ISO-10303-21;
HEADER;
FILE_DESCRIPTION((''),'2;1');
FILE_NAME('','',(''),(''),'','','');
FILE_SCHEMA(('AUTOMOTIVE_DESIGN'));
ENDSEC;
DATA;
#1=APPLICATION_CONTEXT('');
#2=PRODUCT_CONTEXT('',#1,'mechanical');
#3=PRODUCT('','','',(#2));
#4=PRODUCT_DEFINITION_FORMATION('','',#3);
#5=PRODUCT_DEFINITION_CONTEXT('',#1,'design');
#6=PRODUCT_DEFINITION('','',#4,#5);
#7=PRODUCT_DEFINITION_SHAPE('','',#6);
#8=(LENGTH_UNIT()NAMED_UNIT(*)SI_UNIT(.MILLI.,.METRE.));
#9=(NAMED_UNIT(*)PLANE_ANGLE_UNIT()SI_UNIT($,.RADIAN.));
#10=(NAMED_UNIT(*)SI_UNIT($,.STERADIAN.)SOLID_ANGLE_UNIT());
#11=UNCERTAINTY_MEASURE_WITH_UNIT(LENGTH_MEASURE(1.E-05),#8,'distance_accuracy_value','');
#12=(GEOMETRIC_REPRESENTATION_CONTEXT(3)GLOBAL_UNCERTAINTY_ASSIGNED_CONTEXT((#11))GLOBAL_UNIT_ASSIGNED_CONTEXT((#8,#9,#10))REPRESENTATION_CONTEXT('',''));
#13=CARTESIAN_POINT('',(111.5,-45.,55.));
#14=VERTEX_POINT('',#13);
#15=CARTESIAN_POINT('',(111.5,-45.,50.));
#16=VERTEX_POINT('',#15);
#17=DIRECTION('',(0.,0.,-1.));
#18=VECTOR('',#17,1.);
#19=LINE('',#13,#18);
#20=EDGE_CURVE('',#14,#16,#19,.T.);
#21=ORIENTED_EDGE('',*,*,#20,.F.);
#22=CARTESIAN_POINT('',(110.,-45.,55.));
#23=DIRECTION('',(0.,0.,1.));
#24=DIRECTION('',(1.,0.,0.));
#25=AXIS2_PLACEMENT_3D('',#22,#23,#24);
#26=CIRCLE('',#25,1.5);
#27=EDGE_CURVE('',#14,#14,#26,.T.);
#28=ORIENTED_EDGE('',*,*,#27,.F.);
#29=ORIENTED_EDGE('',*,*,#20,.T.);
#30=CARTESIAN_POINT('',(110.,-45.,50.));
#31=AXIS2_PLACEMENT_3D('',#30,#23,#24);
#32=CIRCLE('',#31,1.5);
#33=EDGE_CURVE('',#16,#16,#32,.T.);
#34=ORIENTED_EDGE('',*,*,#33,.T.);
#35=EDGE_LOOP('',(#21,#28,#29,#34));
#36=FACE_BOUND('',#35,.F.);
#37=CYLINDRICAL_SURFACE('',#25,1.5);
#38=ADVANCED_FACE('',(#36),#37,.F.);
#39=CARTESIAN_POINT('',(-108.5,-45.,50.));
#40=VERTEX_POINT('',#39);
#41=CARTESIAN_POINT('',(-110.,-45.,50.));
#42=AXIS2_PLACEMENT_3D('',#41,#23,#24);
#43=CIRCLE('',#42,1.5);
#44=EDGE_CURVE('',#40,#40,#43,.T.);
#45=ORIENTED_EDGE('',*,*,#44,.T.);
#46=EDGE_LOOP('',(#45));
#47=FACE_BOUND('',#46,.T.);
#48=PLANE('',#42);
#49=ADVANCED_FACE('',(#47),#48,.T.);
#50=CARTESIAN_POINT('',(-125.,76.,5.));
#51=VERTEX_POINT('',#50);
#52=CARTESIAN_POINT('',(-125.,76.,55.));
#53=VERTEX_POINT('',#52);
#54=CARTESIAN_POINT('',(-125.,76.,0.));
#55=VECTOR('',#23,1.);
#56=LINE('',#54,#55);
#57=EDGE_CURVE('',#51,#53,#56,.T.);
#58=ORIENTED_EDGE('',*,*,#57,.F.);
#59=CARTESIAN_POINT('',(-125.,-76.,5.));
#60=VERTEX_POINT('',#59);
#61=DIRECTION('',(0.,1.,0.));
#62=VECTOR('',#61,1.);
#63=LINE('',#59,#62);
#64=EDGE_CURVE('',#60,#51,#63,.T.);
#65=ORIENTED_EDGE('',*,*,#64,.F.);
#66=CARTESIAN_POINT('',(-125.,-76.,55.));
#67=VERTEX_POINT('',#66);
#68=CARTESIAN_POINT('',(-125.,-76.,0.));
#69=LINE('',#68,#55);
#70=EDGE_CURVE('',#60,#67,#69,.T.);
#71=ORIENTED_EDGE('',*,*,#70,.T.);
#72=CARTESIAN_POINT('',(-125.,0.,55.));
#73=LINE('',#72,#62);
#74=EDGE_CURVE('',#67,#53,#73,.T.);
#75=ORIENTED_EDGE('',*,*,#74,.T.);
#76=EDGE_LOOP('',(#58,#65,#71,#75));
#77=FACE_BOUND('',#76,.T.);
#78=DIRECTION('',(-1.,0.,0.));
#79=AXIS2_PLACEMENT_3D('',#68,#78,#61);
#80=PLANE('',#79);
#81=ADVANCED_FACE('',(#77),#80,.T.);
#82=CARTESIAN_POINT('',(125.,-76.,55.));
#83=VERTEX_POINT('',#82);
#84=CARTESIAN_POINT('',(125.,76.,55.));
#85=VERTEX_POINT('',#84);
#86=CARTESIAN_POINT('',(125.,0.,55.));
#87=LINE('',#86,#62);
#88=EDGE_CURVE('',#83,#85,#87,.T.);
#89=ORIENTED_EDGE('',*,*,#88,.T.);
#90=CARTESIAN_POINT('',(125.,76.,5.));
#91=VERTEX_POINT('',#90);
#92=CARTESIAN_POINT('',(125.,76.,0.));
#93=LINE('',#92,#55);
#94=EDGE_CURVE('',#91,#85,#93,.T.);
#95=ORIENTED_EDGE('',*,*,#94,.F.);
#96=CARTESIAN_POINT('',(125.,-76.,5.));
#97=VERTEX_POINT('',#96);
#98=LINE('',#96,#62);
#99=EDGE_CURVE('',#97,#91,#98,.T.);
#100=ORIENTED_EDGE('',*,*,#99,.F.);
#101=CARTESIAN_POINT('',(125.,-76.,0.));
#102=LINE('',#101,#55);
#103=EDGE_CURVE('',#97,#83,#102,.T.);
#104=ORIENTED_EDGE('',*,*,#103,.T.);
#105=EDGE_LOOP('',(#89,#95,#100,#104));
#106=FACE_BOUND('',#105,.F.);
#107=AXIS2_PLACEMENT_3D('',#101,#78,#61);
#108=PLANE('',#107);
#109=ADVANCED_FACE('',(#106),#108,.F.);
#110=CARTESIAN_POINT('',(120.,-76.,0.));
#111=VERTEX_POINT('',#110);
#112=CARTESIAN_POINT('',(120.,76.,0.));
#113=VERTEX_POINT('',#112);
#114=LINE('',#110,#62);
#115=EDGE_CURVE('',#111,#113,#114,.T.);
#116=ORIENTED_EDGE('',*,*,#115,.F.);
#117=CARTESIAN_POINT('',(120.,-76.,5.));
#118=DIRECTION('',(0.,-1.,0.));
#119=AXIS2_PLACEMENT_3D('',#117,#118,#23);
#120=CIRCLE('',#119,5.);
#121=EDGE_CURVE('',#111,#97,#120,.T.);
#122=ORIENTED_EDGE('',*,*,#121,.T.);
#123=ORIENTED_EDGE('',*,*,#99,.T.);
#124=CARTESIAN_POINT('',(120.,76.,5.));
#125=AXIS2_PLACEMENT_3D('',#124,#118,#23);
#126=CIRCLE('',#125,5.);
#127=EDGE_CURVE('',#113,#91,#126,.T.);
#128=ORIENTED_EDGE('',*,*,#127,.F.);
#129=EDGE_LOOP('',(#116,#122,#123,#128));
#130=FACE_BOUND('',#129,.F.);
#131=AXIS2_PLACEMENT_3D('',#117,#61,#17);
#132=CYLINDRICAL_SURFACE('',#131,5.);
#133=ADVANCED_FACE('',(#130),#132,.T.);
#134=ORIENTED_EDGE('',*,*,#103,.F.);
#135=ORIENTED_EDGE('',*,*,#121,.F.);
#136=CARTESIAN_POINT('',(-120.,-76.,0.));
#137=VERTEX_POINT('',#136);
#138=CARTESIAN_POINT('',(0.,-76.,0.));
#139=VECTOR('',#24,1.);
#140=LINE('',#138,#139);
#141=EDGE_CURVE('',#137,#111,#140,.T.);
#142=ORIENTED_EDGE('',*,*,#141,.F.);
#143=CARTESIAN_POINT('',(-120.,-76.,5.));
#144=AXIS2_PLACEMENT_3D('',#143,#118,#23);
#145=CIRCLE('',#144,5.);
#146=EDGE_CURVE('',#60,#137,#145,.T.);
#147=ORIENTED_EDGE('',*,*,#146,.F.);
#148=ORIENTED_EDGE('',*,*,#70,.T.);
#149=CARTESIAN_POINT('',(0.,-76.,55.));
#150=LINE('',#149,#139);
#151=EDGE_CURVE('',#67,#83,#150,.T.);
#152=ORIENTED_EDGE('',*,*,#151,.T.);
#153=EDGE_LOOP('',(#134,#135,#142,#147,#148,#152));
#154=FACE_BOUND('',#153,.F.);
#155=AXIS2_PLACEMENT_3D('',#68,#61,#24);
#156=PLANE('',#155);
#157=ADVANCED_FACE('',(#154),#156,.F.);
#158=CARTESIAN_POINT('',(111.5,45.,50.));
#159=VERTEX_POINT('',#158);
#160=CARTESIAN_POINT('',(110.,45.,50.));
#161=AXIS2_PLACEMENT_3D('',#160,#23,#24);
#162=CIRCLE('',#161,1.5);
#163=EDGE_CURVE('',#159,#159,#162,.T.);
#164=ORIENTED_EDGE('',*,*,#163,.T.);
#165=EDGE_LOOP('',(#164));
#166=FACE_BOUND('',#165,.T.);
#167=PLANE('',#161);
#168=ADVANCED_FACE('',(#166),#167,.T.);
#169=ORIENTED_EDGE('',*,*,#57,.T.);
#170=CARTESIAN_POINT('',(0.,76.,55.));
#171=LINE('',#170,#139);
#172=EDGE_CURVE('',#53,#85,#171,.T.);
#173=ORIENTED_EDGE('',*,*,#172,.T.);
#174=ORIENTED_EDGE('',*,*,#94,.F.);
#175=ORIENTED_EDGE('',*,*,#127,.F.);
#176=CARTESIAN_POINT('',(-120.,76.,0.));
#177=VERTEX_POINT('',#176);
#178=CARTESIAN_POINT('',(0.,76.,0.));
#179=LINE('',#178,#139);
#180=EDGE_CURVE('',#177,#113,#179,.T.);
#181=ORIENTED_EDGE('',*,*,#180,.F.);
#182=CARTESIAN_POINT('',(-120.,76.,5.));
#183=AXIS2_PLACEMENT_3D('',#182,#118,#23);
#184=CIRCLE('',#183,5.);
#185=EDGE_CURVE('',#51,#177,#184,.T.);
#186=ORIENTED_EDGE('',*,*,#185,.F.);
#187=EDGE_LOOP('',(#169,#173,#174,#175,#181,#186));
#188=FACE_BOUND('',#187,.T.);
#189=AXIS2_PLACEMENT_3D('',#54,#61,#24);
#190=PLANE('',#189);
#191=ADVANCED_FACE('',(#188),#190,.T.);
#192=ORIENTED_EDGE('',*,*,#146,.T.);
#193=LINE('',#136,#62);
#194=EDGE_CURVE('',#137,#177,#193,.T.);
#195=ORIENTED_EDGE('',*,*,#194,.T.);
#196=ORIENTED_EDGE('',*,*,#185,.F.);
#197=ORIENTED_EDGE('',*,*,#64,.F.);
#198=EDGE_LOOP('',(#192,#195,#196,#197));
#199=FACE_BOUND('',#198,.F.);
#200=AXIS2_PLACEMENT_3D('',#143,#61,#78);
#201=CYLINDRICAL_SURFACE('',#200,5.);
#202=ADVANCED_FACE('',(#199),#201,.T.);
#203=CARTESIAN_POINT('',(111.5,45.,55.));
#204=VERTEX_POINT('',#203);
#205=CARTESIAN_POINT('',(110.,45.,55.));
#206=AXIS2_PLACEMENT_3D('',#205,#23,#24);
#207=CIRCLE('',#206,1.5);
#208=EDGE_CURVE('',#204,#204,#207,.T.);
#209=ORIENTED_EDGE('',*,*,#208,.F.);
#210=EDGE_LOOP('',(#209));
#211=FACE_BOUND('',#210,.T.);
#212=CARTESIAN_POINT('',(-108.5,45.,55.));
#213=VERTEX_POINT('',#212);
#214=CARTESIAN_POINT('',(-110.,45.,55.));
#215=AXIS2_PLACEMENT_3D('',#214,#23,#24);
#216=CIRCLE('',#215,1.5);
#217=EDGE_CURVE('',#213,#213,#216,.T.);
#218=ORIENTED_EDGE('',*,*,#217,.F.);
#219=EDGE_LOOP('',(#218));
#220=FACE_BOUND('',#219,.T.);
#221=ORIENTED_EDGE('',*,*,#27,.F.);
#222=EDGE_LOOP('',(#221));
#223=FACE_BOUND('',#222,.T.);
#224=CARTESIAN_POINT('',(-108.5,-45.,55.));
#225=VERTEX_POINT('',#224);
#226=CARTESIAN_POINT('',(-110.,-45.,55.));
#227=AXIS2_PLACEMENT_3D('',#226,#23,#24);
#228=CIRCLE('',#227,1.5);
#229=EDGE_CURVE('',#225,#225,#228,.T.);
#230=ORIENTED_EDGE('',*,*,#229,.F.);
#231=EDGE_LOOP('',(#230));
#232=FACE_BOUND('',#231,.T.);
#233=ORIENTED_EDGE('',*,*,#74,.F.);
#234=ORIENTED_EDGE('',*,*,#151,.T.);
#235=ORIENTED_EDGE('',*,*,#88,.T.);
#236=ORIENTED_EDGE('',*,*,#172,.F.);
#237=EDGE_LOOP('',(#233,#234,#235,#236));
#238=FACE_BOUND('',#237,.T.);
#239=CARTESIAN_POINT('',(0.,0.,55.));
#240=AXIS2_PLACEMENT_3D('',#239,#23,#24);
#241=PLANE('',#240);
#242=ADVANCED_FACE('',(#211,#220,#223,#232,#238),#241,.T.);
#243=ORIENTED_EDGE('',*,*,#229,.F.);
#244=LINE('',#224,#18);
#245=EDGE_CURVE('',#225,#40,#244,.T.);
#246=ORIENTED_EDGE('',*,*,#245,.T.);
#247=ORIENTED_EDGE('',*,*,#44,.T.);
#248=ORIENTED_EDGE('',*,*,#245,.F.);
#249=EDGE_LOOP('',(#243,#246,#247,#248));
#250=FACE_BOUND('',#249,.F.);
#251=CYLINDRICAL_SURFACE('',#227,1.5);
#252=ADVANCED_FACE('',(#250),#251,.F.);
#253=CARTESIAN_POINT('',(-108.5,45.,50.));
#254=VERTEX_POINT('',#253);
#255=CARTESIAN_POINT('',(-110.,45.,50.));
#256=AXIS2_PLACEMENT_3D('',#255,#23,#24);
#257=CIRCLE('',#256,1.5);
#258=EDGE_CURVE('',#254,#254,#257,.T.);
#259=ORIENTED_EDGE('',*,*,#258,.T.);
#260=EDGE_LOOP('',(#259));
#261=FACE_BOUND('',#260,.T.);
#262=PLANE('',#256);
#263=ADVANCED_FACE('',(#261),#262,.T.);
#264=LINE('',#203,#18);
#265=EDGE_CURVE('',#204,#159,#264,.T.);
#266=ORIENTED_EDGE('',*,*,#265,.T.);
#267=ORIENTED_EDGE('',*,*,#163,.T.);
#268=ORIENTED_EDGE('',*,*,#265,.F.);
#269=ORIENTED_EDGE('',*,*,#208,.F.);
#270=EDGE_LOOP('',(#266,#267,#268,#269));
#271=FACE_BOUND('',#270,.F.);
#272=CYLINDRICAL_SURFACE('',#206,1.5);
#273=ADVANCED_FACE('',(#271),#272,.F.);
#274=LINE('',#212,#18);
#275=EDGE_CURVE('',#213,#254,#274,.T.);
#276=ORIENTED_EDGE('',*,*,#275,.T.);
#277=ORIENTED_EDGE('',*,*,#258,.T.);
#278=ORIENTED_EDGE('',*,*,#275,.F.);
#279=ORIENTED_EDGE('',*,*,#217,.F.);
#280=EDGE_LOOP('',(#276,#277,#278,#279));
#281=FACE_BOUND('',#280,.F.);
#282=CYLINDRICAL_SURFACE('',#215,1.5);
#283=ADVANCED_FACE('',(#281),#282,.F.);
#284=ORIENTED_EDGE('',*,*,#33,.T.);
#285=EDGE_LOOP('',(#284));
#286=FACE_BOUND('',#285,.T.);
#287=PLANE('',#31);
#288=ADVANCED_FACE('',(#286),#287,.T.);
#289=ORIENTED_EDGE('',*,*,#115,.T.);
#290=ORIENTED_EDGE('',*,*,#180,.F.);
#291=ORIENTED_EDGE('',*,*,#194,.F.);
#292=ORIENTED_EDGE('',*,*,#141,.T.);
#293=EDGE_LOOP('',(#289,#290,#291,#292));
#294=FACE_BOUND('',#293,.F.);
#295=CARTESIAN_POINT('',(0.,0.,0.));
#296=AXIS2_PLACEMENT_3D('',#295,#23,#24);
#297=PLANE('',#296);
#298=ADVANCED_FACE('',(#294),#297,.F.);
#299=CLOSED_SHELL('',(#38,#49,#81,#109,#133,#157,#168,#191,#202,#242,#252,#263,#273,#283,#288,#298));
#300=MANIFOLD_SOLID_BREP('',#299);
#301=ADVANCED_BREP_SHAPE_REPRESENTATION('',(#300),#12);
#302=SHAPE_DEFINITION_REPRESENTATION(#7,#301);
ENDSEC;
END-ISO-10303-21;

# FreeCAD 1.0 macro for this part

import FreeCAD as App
import Part
import Sketcher
Q = App.Units.Quantity


def edges_at(feature, points):
    """Names of the edges that pass closest to the given points."""
    edges = feature.Shape.Edges
    near = lambda p: min(range(len(edges)), key=lambda i: edges[i].distToShape(Part.Vertex(*p))[0])
    return sorted({f"Edge{near(p) + 1}" for p in points})


def add_polygon(sketch, points):
    """Adds a closed chain of lines whose ends are joined by coincident constraints."""
    first, n = sketch.GeometryCount, len(points)
    for a, b in zip(points, points[1:] + points[:1]):
        sketch.addGeometry(Part.LineSegment(App.Vector(*a, 0), App.Vector(*b, 0)), False)
    for i in range(n):
        sketch.addConstraint(Sketcher.Constraint("Coincident", first + i, 2, first + (i + 1) % n, 1))

doc = App.newDocument("Part")
body = doc.addObject("PartDesign::Body", "Body")

# Sketch on XY plane
sketch1 = doc.addObject("Sketcher::SketchObject", "Sketch")
body.addObject(sketch1)
sketch1.AttachmentSupport = (doc.XY_Plane, [""])
sketch1.MapMode = "FlatFace"
add_polygon(sketch1, [(-125, 76), (-125, -76), (125, -76), (125, 76)])  # lines 0-3
sketch1.addConstraint([
    Sketcher.Constraint("Vertical", 0),
    Sketcher.Constraint("Horizontal", 1),
    Sketcher.Constraint("Vertical", 2),
    Sketcher.Constraint("Horizontal", 3),
    Sketcher.Constraint("Symmetric", 0, 2, 2, 2, -1, 1),
    Sketcher.Constraint("DistanceX", 1, 1, 1, 2, Q("250 mm")),
    Sketcher.Constraint("DistanceY", 0, 2, 0, 1, Q("152 mm")),
])
pad1 = doc.addObject("PartDesign::Pad", "Pad")
body.addObject(pad1)
pad1.Profile = sketch1
pad1.Length = 55

# Sketch on XY plane
sketch2 = doc.addObject("Sketcher::SketchObject", "Sketch001")
body.addObject(sketch2)
sketch2.AttachmentSupport = (doc.XY_Plane, [""])
sketch2.MapMode = "FlatFace"
sketch2.AttachmentOffset = App.Placement(App.Vector(0, 0, 55), App.Rotation())
sketch2.addGeometry([
    Part.Circle(App.Vector(-110, 45, 0), App.Vector(0, 0, 1), 1.5),
    Part.Circle(App.Vector(110, 45, 0), App.Vector(0, 0, 1), 1.5),
    Part.Circle(App.Vector(-110, -45, 0), App.Vector(0, 0, 1), 1.5),
    Part.Circle(App.Vector(110, -45, 0), App.Vector(0, 0, 1), 1.5),
], False)
sketch2.addConstraint([
    Sketcher.Constraint("Equal", 0, 1),
    Sketcher.Constraint("Equal", 1, 2),
    Sketcher.Constraint("Equal", 2, 3),
    Sketcher.Constraint("Symmetric", 1, 3, 2, 3, -1, 1),
    Sketcher.Constraint("Symmetric", 0, 3, 3, 3, -1, 1),
    Sketcher.Constraint("Symmetric", 0, 3, 1, 3, -2),
    Sketcher.Constraint("Diameter", 0, Q("3 mm")),
    Sketcher.Constraint("DistanceX", 0, 3, -1, 1, Q("110 mm")),
    Sketcher.Constraint("DistanceY", -1, 1, 0, 3, Q("45 mm")),
])
pocket1 = doc.addObject("PartDesign::Pocket", "Pocket")
body.addObject(pocket1)
pocket1.Profile = sketch2
pocket1.Length = 5
doc.recompute()

fillet = doc.addObject("PartDesign::Fillet", "Fillet")
body.addObject(fillet)
fillet.Base = (pocket1, edges_at(pocket1, [(-125, 0, 0), (125, 0, 0)]))
fillet.Radius = 5

doc.recompute()
